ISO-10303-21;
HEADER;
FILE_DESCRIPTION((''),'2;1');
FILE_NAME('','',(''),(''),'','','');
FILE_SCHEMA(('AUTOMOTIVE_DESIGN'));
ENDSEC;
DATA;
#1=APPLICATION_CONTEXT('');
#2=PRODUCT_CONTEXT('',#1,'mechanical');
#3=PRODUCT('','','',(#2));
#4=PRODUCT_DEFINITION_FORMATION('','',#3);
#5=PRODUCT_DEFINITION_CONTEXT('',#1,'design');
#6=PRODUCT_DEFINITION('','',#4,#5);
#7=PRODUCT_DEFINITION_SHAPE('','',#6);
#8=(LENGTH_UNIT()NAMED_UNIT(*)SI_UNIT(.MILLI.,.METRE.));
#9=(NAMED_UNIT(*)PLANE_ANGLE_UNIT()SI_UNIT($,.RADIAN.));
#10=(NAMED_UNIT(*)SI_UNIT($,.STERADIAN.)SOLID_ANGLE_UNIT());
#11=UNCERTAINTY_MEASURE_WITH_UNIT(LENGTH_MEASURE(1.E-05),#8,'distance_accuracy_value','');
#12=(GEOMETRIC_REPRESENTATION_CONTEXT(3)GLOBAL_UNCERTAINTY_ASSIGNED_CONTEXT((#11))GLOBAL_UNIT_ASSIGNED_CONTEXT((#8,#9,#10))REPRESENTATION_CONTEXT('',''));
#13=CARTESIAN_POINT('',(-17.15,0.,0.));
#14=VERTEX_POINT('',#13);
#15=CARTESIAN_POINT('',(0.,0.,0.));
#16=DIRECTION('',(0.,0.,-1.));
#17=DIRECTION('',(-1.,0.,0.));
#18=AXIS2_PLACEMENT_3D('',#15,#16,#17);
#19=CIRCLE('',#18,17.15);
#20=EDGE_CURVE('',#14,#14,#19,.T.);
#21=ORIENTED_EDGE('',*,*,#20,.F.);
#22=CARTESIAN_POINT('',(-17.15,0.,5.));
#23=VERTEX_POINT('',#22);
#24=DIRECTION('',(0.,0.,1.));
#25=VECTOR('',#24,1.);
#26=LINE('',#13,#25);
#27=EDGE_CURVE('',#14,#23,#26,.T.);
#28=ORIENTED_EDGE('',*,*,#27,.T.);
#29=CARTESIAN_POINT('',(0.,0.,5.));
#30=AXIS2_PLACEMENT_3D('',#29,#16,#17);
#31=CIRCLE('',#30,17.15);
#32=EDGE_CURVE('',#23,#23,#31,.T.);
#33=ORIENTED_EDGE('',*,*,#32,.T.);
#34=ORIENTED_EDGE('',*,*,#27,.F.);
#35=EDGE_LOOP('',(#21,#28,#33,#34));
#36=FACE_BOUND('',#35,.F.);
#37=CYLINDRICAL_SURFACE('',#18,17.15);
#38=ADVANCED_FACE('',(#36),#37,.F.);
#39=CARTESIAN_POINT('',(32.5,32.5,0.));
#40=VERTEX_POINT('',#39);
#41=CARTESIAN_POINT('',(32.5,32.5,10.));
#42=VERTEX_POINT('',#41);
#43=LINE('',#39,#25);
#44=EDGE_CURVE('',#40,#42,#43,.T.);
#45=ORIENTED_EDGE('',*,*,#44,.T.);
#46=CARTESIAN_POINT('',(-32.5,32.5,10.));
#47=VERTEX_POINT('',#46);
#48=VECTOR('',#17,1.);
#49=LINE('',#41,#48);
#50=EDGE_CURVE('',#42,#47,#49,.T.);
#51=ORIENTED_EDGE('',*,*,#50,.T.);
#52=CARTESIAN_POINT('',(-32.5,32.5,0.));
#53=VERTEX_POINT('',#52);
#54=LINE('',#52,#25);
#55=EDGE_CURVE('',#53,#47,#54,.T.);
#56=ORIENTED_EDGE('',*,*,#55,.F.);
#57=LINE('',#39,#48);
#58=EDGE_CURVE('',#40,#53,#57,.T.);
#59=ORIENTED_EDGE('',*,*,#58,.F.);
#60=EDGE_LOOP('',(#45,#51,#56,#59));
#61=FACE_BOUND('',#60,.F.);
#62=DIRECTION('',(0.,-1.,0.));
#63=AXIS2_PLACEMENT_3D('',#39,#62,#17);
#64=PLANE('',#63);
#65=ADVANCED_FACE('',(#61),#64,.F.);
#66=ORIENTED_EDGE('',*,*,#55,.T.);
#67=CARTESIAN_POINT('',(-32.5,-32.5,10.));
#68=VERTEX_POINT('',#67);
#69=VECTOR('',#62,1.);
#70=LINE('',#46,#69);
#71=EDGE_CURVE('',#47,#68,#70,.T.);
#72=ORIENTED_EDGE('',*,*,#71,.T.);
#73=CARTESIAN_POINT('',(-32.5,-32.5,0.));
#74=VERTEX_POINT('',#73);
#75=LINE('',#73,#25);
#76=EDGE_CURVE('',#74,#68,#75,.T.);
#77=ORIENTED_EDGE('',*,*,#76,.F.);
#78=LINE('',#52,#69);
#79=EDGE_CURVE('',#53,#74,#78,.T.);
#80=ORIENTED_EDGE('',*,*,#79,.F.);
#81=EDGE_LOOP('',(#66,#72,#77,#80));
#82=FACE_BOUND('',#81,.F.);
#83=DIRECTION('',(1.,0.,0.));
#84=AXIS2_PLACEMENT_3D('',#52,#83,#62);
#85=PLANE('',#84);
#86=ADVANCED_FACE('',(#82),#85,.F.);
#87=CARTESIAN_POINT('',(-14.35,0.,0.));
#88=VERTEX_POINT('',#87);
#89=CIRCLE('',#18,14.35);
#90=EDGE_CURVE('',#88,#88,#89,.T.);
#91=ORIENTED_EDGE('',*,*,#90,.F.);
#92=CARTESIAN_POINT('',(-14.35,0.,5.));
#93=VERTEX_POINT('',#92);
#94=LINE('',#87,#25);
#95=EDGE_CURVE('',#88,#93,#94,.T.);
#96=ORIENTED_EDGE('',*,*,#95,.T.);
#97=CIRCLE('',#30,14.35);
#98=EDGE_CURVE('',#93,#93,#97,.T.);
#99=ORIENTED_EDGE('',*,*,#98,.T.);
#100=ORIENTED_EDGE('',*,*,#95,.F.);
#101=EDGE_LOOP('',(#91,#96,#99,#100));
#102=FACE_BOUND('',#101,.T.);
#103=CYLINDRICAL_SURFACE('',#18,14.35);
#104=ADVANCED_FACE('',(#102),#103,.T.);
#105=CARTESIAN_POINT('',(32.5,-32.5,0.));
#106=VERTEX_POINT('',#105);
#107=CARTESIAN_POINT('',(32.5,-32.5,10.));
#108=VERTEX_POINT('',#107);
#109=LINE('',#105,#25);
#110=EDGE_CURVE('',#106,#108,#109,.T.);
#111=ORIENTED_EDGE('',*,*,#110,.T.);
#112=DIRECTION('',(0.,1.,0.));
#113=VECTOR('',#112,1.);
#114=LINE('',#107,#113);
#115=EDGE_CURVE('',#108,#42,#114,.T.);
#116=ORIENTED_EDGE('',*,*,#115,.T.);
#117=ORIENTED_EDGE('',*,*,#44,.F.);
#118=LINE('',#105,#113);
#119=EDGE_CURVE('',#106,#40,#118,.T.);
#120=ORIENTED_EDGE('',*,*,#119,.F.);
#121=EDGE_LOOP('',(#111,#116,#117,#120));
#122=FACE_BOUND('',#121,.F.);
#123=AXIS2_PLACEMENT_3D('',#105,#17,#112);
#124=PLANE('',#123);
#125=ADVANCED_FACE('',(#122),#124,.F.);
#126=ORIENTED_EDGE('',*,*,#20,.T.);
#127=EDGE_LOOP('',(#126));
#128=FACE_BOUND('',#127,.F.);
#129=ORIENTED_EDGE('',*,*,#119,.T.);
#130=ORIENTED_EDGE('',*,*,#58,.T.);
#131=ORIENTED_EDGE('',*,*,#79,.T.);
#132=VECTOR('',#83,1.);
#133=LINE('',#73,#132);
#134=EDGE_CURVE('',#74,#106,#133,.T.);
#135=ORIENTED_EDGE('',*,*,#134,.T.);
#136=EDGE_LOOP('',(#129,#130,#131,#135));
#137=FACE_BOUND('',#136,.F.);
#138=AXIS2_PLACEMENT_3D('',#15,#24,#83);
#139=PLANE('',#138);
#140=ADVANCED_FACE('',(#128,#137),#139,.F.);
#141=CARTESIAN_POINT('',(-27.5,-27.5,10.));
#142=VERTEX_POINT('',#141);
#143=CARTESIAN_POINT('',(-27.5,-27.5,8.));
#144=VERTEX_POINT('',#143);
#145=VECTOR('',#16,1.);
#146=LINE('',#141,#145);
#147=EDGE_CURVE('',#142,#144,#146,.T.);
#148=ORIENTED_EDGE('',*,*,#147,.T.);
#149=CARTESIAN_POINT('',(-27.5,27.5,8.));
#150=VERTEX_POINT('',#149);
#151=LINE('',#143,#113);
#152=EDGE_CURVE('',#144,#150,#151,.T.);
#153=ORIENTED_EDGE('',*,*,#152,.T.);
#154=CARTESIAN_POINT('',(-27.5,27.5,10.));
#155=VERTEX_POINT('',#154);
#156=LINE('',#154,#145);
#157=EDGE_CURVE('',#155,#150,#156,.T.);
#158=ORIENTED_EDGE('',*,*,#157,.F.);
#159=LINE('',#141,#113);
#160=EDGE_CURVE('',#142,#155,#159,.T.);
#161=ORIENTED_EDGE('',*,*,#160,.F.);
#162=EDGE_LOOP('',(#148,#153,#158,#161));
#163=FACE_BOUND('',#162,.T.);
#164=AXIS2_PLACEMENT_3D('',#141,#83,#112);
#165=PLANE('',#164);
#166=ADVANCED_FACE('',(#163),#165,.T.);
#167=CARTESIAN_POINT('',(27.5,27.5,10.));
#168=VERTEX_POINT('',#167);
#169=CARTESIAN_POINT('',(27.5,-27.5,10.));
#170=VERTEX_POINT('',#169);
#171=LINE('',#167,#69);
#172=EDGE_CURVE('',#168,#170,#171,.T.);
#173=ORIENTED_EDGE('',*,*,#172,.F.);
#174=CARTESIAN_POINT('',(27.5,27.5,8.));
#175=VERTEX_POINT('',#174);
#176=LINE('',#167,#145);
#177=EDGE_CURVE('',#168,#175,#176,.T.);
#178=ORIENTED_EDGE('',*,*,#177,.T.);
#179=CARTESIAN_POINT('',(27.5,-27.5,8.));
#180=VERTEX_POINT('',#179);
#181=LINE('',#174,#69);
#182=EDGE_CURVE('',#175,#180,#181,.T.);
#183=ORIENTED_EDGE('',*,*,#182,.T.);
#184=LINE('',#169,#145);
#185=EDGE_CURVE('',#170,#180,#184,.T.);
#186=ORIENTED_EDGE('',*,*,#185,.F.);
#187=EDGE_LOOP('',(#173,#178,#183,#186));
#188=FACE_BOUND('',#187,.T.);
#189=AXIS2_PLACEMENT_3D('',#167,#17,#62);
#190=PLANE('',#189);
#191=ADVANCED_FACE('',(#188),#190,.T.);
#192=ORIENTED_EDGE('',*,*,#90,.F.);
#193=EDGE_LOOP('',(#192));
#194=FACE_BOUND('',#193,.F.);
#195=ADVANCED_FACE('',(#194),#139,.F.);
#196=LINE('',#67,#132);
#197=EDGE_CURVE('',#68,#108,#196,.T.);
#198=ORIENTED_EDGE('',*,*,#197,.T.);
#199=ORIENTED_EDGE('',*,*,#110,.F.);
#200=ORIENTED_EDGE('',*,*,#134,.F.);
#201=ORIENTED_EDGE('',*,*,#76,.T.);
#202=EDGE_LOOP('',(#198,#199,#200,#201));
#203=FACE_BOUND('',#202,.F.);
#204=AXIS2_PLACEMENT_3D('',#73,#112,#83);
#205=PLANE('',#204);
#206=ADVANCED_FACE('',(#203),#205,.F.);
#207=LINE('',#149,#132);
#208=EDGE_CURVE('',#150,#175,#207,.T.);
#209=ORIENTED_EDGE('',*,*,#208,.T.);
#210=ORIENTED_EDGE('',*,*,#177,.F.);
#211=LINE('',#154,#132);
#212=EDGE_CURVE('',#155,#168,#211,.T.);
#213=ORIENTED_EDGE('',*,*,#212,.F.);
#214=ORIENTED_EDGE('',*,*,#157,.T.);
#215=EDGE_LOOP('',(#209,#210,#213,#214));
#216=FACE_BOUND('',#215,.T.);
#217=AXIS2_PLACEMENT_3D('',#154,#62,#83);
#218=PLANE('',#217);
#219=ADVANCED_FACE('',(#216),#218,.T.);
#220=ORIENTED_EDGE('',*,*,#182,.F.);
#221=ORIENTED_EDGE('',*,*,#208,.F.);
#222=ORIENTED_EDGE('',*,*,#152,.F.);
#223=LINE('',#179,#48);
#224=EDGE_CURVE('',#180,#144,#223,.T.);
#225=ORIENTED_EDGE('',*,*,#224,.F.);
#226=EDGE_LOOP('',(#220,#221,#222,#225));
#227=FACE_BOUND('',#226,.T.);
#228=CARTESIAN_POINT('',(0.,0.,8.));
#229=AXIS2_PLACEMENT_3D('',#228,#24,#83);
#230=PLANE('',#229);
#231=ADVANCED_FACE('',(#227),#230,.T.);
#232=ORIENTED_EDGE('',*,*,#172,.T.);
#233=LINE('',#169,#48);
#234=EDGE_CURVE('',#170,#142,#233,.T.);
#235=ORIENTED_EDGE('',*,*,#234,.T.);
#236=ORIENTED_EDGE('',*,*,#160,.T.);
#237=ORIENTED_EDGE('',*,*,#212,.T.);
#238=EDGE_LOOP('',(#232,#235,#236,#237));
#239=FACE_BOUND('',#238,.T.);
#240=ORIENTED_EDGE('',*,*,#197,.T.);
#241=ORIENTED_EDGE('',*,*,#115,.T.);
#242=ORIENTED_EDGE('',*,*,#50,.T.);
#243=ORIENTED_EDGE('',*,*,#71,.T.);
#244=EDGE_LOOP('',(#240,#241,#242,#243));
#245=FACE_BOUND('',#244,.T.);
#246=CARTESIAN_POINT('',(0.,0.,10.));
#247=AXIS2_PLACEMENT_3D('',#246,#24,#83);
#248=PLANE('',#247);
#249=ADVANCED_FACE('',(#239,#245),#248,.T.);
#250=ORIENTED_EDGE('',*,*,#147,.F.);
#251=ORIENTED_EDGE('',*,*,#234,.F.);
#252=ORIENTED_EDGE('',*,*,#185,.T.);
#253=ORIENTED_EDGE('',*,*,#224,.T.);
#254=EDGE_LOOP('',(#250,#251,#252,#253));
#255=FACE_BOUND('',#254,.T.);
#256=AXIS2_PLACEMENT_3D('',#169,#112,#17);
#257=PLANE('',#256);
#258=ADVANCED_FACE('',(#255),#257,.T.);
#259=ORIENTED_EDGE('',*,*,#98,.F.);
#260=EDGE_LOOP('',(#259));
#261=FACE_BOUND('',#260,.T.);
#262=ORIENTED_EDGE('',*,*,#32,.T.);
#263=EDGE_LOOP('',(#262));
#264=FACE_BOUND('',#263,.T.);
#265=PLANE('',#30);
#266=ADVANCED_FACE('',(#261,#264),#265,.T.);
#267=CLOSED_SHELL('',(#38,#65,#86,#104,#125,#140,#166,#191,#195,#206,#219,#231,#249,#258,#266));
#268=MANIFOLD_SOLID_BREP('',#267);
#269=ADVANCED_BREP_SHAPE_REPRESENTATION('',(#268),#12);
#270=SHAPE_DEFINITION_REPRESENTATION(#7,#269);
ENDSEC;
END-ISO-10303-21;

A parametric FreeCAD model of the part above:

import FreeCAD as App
import Part
import Sketcher
from FreeCAD import Vector

doc = App.newDocument("Part")
body = doc.addObject("PartDesign::Body", "Body")

# Sketch on XY plane
sketch1 = body.newObject("Sketcher::SketchObject", "Sketch")
sketch1.AttachmentSupport = (doc.getObject("XY_Plane"), [""])
sketch1.MapMode = "FlatFace"
sketch1.addGeometry([
    Part.LineSegment(Vector(32, -32, 0), Vector(32, 32, 0)),
    Part.LineSegment(Vector(32, 32, 0), Vector(-32, 32, 0)),
    Part.LineSegment(Vector(-32, 32, 0), Vector(-32, -32, 0)),
    Part.LineSegment(Vector(-32, -32, 0), Vector(32, -32, 0)),
], False)
sketch1.addConstraint([
    Sketcher.Constraint("Coincident", 0, 2, 1, 1),
    Sketcher.Constraint("Coincident", 1, 2, 2, 1),
    Sketcher.Constraint("Coincident", 2, 2, 3, 1),
    Sketcher.Constraint("Coincident", 3, 2, 0, 1),
    Sketcher.Constraint("Vertical", 0),
    Sketcher.Constraint("Horizontal", 1),
    Sketcher.Constraint("Vertical", 2),
    Sketcher.Constraint("Horizontal", 3),
    Sketcher.Constraint("Symmetric", 0, 2, 2, 2, -1, 1),
    Sketcher.Constraint("Equal", 3, 0),
    Sketcher.Constraint("DistanceX", 1, 2, 1, 1, 65.0),
])
pad1 = body.newObject("PartDesign::Pad", "Pad")
pad1.Profile = sketch1
pad1.Length = 10

# Sketch on XY plane
sketch2 = body.newObject("Sketcher::SketchObject", "Sketch001")
sketch2.AttachmentSupport = (doc.getObject("XY_Plane"), [""])
sketch2.MapMode = "FlatFace"
sketch2.addGeometry([
    Part.Circle(Vector(0, 0, 0), Vector(0, 0, 1), 17),
    Part.Circle(Vector(0, 0, 0), Vector(0, 0, 1), 14),
], False)
sketch2.addConstraint([
    Sketcher.Constraint("Coincident", 0, 3, -1, 1),
    Sketcher.Constraint("Coincident", 1, 3, -1, 1),
    Sketcher.Constraint("Diameter", 0, 34.3),
    Sketcher.Constraint("Diameter", 1, 28.7),
])
pocket1 = body.newObject("PartDesign::Pocket", "Pocket")
pocket1.Profile = sketch2
pocket1.Length = 5
pocket1.Reversed = True

# Sketch on XY plane
sketch3 = body.newObject("Sketcher::SketchObject", "Sketch002")
sketch3.AttachmentSupport = (doc.getObject("XY_Plane"), [""])
sketch3.MapMode = "FlatFace"
sketch3.AttachmentOffset = App.Placement(Vector(0, 0, 10), App.Rotation())
sketch3.addGeometry([
    Part.LineSegment(Vector(28, 28, 0), Vector(-28, 28, 0)),
    Part.LineSegment(Vector(-28, 28, 0), Vector(-28, -28, 0)),
    Part.LineSegment(Vector(-28, -28, 0), Vector(28, -28, 0)),
    Part.LineSegment(Vector(28, -28, 0), Vector(28, 28, 0)),
], False)
sketch3.addConstraint([
    Sketcher.Constraint("Coincident", 0, 2, 1, 1),
    Sketcher.Constraint("Coincident", 1, 2, 2, 1),
    Sketcher.Constraint("Coincident", 2, 2, 3, 1),
    Sketcher.Constraint("Coincident", 3, 2, 0, 1),
    Sketcher.Constraint("Horizontal", 0),
    Sketcher.Constraint("Vertical", 1),
    Sketcher.Constraint("Horizontal", 2),
    Sketcher.Constraint("Vertical", 3),
    Sketcher.Constraint("Symmetric", 0, 2, 2, 2, -1, 1),
    Sketcher.Constraint("Equal", 2, 1),
    Sketcher.Constraint("DistanceX", 0, 2, 0, 1, 55.0),
])
pocket2 = body.newObject("PartDesign::Pocket", "Pocket001")
pocket2.Profile = sketch3
pocket2.Length = 2

doc.recompute()
